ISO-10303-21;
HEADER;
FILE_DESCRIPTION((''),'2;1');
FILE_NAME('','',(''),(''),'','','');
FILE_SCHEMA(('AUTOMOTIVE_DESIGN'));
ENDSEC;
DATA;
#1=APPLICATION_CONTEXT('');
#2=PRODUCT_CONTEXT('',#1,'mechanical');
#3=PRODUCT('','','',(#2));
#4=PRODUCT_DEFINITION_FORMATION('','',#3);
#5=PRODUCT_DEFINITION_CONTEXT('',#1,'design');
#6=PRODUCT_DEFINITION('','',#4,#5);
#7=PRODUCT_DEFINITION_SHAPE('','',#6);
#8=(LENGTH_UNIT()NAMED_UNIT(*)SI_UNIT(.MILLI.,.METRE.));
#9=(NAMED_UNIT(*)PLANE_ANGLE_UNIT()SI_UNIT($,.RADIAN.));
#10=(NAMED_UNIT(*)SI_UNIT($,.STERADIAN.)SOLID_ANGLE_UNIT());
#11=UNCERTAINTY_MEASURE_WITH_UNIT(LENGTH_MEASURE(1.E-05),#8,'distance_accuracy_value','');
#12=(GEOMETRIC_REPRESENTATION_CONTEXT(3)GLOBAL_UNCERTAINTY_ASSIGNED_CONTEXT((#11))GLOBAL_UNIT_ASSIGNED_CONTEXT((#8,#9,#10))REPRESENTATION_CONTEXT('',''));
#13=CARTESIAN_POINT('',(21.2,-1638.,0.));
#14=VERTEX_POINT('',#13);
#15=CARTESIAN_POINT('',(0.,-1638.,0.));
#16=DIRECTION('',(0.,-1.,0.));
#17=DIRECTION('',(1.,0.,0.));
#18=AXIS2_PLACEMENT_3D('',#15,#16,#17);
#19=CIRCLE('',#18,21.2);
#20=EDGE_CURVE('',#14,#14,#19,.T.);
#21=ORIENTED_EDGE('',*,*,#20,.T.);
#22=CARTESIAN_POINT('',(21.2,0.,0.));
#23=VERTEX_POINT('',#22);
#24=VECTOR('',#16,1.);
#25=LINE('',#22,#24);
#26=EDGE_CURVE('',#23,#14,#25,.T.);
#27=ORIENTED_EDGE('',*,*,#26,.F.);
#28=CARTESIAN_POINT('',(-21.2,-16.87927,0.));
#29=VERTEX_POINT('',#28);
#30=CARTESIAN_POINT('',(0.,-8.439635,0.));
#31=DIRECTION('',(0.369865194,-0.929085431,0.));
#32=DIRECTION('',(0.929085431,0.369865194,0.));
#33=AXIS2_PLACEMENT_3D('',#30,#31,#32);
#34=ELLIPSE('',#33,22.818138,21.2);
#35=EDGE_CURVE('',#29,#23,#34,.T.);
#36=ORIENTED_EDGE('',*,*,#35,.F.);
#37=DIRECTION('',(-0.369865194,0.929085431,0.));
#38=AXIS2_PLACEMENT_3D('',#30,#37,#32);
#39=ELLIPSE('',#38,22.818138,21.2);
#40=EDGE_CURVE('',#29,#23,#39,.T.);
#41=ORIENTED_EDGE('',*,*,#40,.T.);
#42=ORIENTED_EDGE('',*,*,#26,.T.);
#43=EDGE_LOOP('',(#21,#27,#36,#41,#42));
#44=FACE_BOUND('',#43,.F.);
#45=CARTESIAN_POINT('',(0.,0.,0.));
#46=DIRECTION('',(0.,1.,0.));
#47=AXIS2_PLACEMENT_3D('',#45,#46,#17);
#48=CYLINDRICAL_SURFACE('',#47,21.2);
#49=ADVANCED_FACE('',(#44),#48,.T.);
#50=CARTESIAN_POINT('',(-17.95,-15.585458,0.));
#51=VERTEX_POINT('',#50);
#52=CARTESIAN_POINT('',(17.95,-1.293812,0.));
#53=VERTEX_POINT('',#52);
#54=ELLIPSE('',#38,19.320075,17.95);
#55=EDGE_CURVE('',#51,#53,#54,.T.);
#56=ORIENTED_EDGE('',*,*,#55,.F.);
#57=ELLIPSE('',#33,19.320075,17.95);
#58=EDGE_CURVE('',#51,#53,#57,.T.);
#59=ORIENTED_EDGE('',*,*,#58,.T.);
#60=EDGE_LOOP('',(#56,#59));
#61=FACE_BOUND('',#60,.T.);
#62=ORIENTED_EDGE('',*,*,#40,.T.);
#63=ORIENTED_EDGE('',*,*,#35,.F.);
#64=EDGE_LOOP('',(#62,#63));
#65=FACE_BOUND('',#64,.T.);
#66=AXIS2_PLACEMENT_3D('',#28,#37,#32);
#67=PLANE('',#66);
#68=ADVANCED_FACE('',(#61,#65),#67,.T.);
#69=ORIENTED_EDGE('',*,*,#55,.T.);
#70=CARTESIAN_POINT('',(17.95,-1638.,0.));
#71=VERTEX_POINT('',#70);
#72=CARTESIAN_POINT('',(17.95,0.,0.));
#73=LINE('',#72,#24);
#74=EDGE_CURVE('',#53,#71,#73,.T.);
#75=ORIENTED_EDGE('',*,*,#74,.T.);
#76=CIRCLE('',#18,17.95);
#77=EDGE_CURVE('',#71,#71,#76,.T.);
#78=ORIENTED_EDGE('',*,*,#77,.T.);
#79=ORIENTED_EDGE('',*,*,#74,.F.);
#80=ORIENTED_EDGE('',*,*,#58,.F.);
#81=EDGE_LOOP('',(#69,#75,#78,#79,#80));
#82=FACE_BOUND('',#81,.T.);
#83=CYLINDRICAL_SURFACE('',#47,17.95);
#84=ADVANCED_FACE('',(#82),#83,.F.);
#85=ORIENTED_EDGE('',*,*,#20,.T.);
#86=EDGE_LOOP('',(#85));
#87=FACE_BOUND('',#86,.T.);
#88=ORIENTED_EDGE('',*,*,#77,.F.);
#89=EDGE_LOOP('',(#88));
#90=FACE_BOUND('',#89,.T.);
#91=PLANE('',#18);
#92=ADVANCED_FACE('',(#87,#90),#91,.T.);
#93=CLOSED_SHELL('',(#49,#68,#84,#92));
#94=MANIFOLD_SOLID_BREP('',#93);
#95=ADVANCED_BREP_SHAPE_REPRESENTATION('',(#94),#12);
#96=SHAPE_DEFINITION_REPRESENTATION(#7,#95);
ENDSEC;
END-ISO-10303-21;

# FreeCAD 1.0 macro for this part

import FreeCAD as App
import Part
import Sketcher

V = App.Vector
Q = App.Units.Quantity


def add_polygon(sketch, points):
    """Adds a closed chain of lines whose ends are joined by coincident constraints."""
    first, n = sketch.GeometryCount, len(points)
    for a, b in zip(points, points[1:] + points[:1]):
        sketch.addGeometry(Part.LineSegment(App.Vector(*a, 0), App.Vector(*b, 0)), False)
    for i in range(n):
        sketch.addConstraint(Sketcher.Constraint("Coincident", first + i, 2, first + (i + 1) % n, 1))

doc = App.newDocument("Part")
body = doc.addObject("PartDesign::Body", "Body")

sketch1 = doc.addObject("Sketcher::SketchObject", "Sketch")
body.addObject(sketch1)
sketch1.AttachmentSupport = (doc.XZ_Plane, [""])
sketch1.MapMode = "FlatFace"
sketch1.addGeometry([
    Part.Circle(V(0, 0, 0), V(0, 0, 1), 21),
    Part.Circle(V(0, 0, 0), V(0, 0, 1), 18),
], False)
sketch1.addConstraint([
    Sketcher.Constraint("Coincident", 0, 3, -1, 1),
    Sketcher.Constraint("Coincident", 1, 3, -1, 1),
    Sketcher.Constraint("Diameter", 0, Q("42.4 mm")),
    Sketcher.Constraint("Diameter", 1, Q("35.9 mm")),
])
pad1 = doc.addObject("PartDesign::Pad", "Pad")
body.addObject(pad1)
pad1.Profile = sketch1
pad1.Length = 1638

sketch2 = doc.addObject("Sketcher::SketchObject", "Sketch001")
body.addObject(sketch2)
sketch2.AttachmentSupport = (doc.XY_Plane, [""])
sketch2.MapMode = "FlatFace"
add_polygon(sketch2, [(-21, 0), (-21, -17), (21, 0)])
sketch2.addConstraint([
    Sketcher.Constraint("Vertical", 0),
    Sketcher.Constraint("Horizontal", 2),
    Sketcher.Constraint("Symmetric", 1, 2, 2, 2, -1, 1),
    Sketcher.Constraint("DistanceX", 2, 2, 2, 1, Q("42.4 mm")),
    Sketcher.Constraint("DistanceY", 0, 2, 0, 1, Q("16.87927 mm")),
])
pocket1 = doc.addObject("PartDesign::Pocket", "Pocket")
body.addObject(pocket1)
pocket1.Profile = sketch2
pocket1.Type = "ThroughAll"
pocket1.Midplane = True

doc.recompute()
